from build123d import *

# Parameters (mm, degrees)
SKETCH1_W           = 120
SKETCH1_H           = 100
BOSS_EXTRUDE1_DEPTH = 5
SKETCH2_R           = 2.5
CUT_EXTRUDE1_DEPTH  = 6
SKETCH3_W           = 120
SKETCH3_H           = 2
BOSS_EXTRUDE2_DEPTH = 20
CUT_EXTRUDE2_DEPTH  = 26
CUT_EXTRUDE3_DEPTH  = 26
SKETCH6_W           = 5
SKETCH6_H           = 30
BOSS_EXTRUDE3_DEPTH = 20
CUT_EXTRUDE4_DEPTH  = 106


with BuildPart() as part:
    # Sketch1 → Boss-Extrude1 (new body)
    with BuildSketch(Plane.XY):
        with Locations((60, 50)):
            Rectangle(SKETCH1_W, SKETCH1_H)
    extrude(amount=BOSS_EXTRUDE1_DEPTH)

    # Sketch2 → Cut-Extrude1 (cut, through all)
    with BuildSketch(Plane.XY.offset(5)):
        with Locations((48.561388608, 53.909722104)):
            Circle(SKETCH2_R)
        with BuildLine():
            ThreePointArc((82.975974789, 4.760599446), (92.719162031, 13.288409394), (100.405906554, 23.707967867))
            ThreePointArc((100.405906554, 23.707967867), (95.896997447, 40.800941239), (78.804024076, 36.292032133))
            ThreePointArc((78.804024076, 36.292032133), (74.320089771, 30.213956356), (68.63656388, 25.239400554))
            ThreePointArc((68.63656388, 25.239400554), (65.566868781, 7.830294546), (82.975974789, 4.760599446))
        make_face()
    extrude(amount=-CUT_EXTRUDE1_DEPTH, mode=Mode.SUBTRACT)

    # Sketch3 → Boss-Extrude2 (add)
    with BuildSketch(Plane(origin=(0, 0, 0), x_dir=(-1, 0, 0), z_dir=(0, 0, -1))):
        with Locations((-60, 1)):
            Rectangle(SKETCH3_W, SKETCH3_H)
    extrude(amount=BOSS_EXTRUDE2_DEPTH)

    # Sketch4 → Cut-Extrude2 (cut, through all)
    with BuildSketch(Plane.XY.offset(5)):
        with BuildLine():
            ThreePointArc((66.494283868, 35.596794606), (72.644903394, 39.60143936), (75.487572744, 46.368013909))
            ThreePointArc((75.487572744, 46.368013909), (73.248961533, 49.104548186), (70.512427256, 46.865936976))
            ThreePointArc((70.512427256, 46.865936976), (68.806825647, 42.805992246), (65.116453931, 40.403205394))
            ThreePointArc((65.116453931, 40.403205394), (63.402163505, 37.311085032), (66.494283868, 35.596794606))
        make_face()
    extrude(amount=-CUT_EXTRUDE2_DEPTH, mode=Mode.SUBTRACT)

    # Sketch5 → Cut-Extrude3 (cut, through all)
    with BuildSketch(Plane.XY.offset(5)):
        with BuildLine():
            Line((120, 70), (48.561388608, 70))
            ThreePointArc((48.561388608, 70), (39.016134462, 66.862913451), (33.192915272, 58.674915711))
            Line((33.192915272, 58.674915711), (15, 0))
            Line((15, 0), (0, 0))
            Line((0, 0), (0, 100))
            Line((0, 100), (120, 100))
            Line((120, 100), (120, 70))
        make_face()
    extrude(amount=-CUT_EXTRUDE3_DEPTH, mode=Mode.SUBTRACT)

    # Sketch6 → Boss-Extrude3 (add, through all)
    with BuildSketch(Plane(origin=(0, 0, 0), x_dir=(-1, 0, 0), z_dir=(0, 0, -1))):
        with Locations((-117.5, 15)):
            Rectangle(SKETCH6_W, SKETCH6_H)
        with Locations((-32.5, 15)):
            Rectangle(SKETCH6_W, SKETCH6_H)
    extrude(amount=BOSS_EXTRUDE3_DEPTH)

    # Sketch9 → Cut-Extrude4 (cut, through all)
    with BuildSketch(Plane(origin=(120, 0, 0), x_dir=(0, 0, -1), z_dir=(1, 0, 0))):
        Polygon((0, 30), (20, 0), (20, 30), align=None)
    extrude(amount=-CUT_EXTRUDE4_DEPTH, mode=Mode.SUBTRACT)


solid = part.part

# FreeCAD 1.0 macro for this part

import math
import FreeCAD as App
import Part
import Sketcher
Q = App.Units.Quantity

doc = App.newDocument("Part")
params = doc.addObject("Spreadsheet::Sheet", "Params")
for row, (alias, value) in enumerate([
    ("sketch1_width", "120 mm"),
    ("sketch1_height", "100 mm"),
    ("pad1_length", "5 mm"),
    ("sketch2_diameter", "5 mm"),
    ("sketch2_radius", "60 mm"),
    ("sketch2_radius2", "35 mm"),
    ("sketch3_width", "120 mm"),
    ("sketch3_height", "2 mm"),
    ("pad2_length", "20 mm"),
    ("sketch4_radius", "12.5 mm"),
    ("sketch4_radius2", "2.5 mm"),
    ("sketch5_width", "120 mm"),
    ("sketch5_width2", "15 mm"),
    ("sketch5_height", "30 mm"),
    ("sketch5_height2", "100 mm"),
    ("sketch6_width", "5 mm"),
    ("sketch6_height", "30 mm"),
    ("pad3_length", "20 mm"),
    ("sketch7_width", "30 mm"),
    ("sketch7_height", "20 mm"),
], start=1):
    params.set(f"A{row}", alias)
    params.set(f"B{row}", "=" + value)
    params.setAlias(f"B{row}", alias)

body = doc.addObject("PartDesign::Body", "Body")

# Sketch on XY plane
sketch1 = body.newObject("Sketcher::SketchObject", "Sketch")
sketch1.AttachmentSupport = (doc.getObject("XY_Plane"), [""])
sketch1.MapMode = "FlatFace"
sketch1.addGeometry([
    Part.LineSegment(App.Vector(0, 100, 0), App.Vector(0, 0, 0)),
    Part.LineSegment(App.Vector(0, 0, 0), App.Vector(120, 0, 0)),
    Part.LineSegment(App.Vector(120, 0, 0), App.Vector(120, 100, 0)),
    Part.LineSegment(App.Vector(120, 100, 0), App.Vector(0, 100, 0)),
], False)
sketch1.addConstraint([
    Sketcher.Constraint("Coincident", 0, 2, 1, 1),
    Sketcher.Constraint("Coincident", 1, 2, 2, 1),
    Sketcher.Constraint("Coincident", 2, 2, 3, 1),
    Sketcher.Constraint("Coincident", 3, 2, 0, 1),
    Sketcher.Constraint("Vertical", 0),
    Sketcher.Constraint("Horizontal", 1),
    Sketcher.Constraint("Vertical", 2),
    Sketcher.Constraint("Horizontal", 3),
    Sketcher.Constraint("Coincident", 0, 2, -1, 1),
    Sketcher.Constraint("DistanceX", 1, 1, 1, 2, Q("120 mm")),
    Sketcher.Constraint("DistanceY", 0, 2, 0, 1, Q("100 mm")),
])
sketch1.setExpression("Constraints[9]", "Params.sketch1_width")
sketch1.setExpression("Constraints[10]", "Params.sketch1_height")
pad1 = body.newObject("PartDesign::Pad", "Pad")
pad1.Profile = sketch1
pad1.setExpression("Length", "Params.pad1_length")

# Sketch on XY plane
sketch2 = body.newObject("Sketcher::SketchObject", "Sketch001")
sketch2.AttachmentSupport = (doc.getObject("XY_Plane"), [""])
sketch2.MapMode = "FlatFace"
sketch2.AttachmentOffset = App.Placement(App.Vector(0, 0, 5), App.Rotation())
sketch2.addGeometry([
    Part.Circle(App.Vector(48.561389, 53.909722, 0), App.Vector(0, 0, 1), 2.5),  # 0
    Part.ArcOfCircle(Part.Circle(App.Vector(48.561389, 53.909722, 0), App.Vector(0, 0, 1), 60), math.radians(-55), math.radians(-30.222716)),  # 1
    Part.ArcOfCircle(Part.Circle(App.Vector(89.604965, 30, 0), App.Vector(0, 0, 1), 12.5), math.radians(-30.222716), math.radians(149.777284)),  # 2
    Part.ArcOfCircle(Part.Circle(App.Vector(48.561389, 53.909722, 0), App.Vector(0, 0, 1), 35), math.radians(-55), math.radians(-30.222716)),  # 3
    Part.ArcOfCircle(Part.Circle(App.Vector(75.806269, 15, 0), App.Vector(0, 0, 1), 12.5), math.radians(125), math.radians(305)),  # 4
], False)
sketch2.addConstraint([
    Sketcher.Constraint("Tangent", 1, 2, 2, 1),
    Sketcher.Constraint("Tangent", 2, 2, 3, 2),
    Sketcher.Constraint("Tangent", 3, 1, 4, 1),
    Sketcher.Constraint("Tangent", 4, 2, 1, 1),
    Sketcher.Constraint("Coincident", 1, 3, 0, 3),
    Sketcher.Constraint("Coincident", 3, 3, 0, 3),
    Sketcher.Constraint("Diameter", 0, Q("5 mm")),
    Sketcher.Constraint("Radius", 1, Q("60 mm")),
    Sketcher.Constraint("Radius", 3, Q("35 mm")),
    Sketcher.Constraint("DistanceY", -1, 1, 2, 3, Q("30 mm")),
    Sketcher.Constraint("DistanceY", -1, 1, 4, 3, Q("15 mm")),
    Sketcher.Constraint("DistanceY", -1, 1, 3, 1, Q("25.239401 mm")),
    Sketcher.Constraint("DistanceX", -1, 1, 0, 3, Q("48.561389 mm")),
])
sketch2.setExpression("Constraints[6]", "Params.sketch2_diameter")
sketch2.setExpression("Constraints[7]", "Params.sketch2_radius")
sketch2.setExpression("Constraints[8]", "Params.sketch2_radius2")
pocket1 = body.newObject("PartDesign::Pocket", "Pocket")
pocket1.Profile = sketch2
pocket1.Type = "ThroughAll"

# Sketch on XY plane
sketch3 = body.newObject("Sketcher::SketchObject", "Sketch002")
sketch3.AttachmentSupport = (doc.getObject("XY_Plane"), [""])
sketch3.MapMode = "FlatFace"
sketch3.addGeometry([
    Part.LineSegment(App.Vector(120, 2, 0), App.Vector(120, 0, 0)),
    Part.LineSegment(App.Vector(120, 0, 0), App.Vector(0, 0, 0)),
    Part.LineSegment(App.Vector(0, 0, 0), App.Vector(0, 2, 0)),
    Part.LineSegment(App.Vector(0, 2, 0), App.Vector(120, 2, 0)),
], False)
sketch3.addConstraint([
    Sketcher.Constraint("Coincident", 0, 2, 1, 1),
    Sketcher.Constraint("Coincident", 1, 2, 2, 1),
    Sketcher.Constraint("Coincident", 2, 2, 3, 1),
    Sketcher.Constraint("Coincident", 3, 2, 0, 1),
    Sketcher.Constraint("Vertical", 0),
    Sketcher.Constraint("Horizontal", 1),
    Sketcher.Constraint("Vertical", 2),
    Sketcher.Constraint("Horizontal", 3),
    Sketcher.Constraint("Coincident", 1, 2, -1, 1),
    Sketcher.Constraint("DistanceX", 1, 2, 1, 1, Q("120 mm")),
    Sketcher.Constraint("DistanceY", 0, 2, 0, 1, Q("2 mm")),
])
sketch3.setExpression("Constraints[9]", "Params.sketch3_width")
sketch3.setExpression("Constraints[10]", "Params.sketch3_height")
pad2 = body.newObject("PartDesign::Pad", "Pad001")
pad2.Profile = sketch3
pad2.setExpression("Length", "Params.pad2_length")
pad2.Reversed = True

# Sketch on XY plane
sketch4 = body.newObject("Sketcher::SketchObject", "Sketch003")
sketch4.AttachmentSupport = (doc.getObject("XY_Plane"), [""])
sketch4.MapMode = "FlatFace"
sketch4.AttachmentOffset = App.Placement(App.Vector(0, 0, 5), App.Rotation())
sketch4.addGeometry([
    Part.ArcOfCircle(Part.Circle(App.Vector(63.049709, 47.612822, 0), App.Vector(0, 0, 1), 12.5), math.radians(-74.004254), math.radians(-5.715251)),
    Part.ArcOfCircle(Part.Circle(App.Vector(73, 46.616975, 0), App.Vector(0, 0, 1), 2.5), math.radians(-5.715251), math.radians(174.284749)),
    Part.ArcOfCircle(Part.Circle(App.Vector(63.049709, 47.612822, 0), App.Vector(0, 0, 1), 7.5), math.radians(-74.004254), math.radians(-5.715251)),
    Part.ArcOfCircle(Part.Circle(App.Vector(65.805369, 38, 0), App.Vector(0, 0, 1), 2.5), math.radians(105.995746), math.radians(285.995746)),
], False)
sketch4.addConstraint([
    Sketcher.Constraint("Tangent", 0, 2, 1, 1),
    Sketcher.Constraint("Tangent", 1, 2, 2, 2),
    Sketcher.Constraint("Tangent", 2, 1, 3, 1),
    Sketcher.Constraint("Tangent", 3, 2, 0, 1),
    Sketcher.Constraint("Coincident", 2, 3, 0, 3),
    Sketcher.Constraint("Radius", 0, Q("12.5 mm")),
    Sketcher.Constraint("Radius", 1, Q("2.5 mm")),
    Sketcher.Constraint("DistanceX", -1, 1, 1, 3, Q("73 mm")),
    Sketcher.Constraint("DistanceY", -1, 1, 3, 3, Q("38 mm")),
    Sketcher.Constraint("DistanceX", -1, 1, 0, 3, Q("63.049709 mm")),
    Sketcher.Constraint("DistanceY", -1, 1, 0, 3, Q("47.612822 mm")),
])
sketch4.setExpression("Constraints[5]", "Params.sketch4_radius")
sketch4.setExpression("Constraints[6]", "Params.sketch4_radius2")
pocket2 = body.newObject("PartDesign::Pocket", "Pocket001")
pocket2.Profile = sketch4
pocket2.Type = "ThroughAll"

# Sketch on XY plane
sketch5 = body.newObject("Sketcher::SketchObject", "Sketch004")
sketch5.AttachmentSupport = (doc.getObject("XY_Plane"), [""])
sketch5.MapMode = "FlatFace"
sketch5.AttachmentOffset = App.Placement(App.Vector(0, 0, 5), App.Rotation())
sketch5.addGeometry([
    Part.LineSegment(App.Vector(48.561389, 70, 0), App.Vector(120, 70, 0)),  # 0
    Part.LineSegment(App.Vector(120, 70, 0), App.Vector(120, 100, 0)),  # 1
    Part.LineSegment(App.Vector(120, 100, 0), App.Vector(0, 100, 0)),  # 2
    Part.LineSegment(App.Vector(0, 100, 0), App.Vector(0, 0, 0)),  # 3
    Part.LineSegment(App.Vector(0, 0, 0), App.Vector(15, 0, 0)),  # 4
    Part.LineSegment(App.Vector(15, 0, 0), App.Vector(33.192915, 58.674916, 0)),  # 5
    Part.ArcOfCircle(Part.Circle(App.Vector(48.561389, 53.909722, 0), App.Vector(0, 0, 1), 16.090278), math.radians(90), math.radians(162.773275)),  # 6
], False)
sketch5.addConstraint([
    Sketcher.Constraint("Coincident", 0, 2, 1, 1),
    Sketcher.Constraint("Coincident", 1, 2, 2, 1),
    Sketcher.Constraint("Coincident", 2, 2, 3, 1),
    Sketcher.Constraint("Coincident", 3, 2, 4, 1),
    Sketcher.Constraint("Coincident", 4, 2, 5, 1),
    Sketcher.Constraint("Tangent", 5, 2, 6, 2),
    Sketcher.Constraint("Tangent", 6, 1, 0, 1),
    Sketcher.Constraint("Horizontal", 0),
    Sketcher.Constraint("Vertical", 1),
    Sketcher.Constraint("Horizontal", 2),
    Sketcher.Constraint("Vertical", 3),
    Sketcher.Constraint("Horizontal", 4),
    Sketcher.Constraint("Coincident", 3, 2, -1, 1),
    Sketcher.Constraint("DistanceX", 2, 2, 2, 1, Q("120 mm")),
    Sketcher.Constraint("DistanceX", 4, 1, 4, 2, Q("15 mm")),
    Sketcher.Constraint("DistanceY", 1, 1, 1, 2, Q("30 mm")),
    Sketcher.Constraint("DistanceY", 3, 2, 3, 1, Q("100 mm")),
    Sketcher.Constraint("Radius", 6, Q("16.090278 mm")),
    Sketcher.Constraint("DistanceX", 0, 1, 0, 2, Q("71.438611 mm")),
])
sketch5.setExpression("Constraints[13]", "Params.sketch5_width")
sketch5.setExpression("Constraints[14]", "Params.sketch5_width2")
sketch5.setExpression("Constraints[15]", "Params.sketch5_height")
sketch5.setExpression("Constraints[16]", "Params.sketch5_height2")
pocket3 = body.newObject("PartDesign::Pocket", "Pocket002")
pocket3.Profile = sketch5
pocket3.Type = "ThroughAll"

# Sketch on XY plane
sketch6 = body.newObject("Sketcher::SketchObject", "Sketch005")
sketch6.AttachmentSupport = (doc.getObject("XY_Plane"), [""])
sketch6.MapMode = "FlatFace"
sketch6.addGeometry([
    Part.LineSegment(App.Vector(120, 30, 0), App.Vector(120, 0, 0)),  # 0
    Part.LineSegment(App.Vector(120, 0, 0), App.Vector(115, 0, 0)),  # 1
    Part.LineSegment(App.Vector(115, 0, 0), App.Vector(115, 30, 0)),  # 2
    Part.LineSegment(App.Vector(115, 30, 0), App.Vector(120, 30, 0)),  # 3
    Part.LineSegment(App.Vector(35, 30, 0), App.Vector(35, 0, 0)),  # 4
    Part.LineSegment(App.Vector(35, 0, 0), App.Vector(30, 0, 0)),  # 5
    Part.LineSegment(App.Vector(30, 0, 0), App.Vector(30, 30, 0)),  # 6
    Part.LineSegment(App.Vector(30, 30, 0), App.Vector(35, 30, 0)),  # 7
], False)
sketch6.addConstraint([
    Sketcher.Constraint("Coincident", 0, 2, 1, 1),
    Sketcher.Constraint("Coincident", 1, 2, 2, 1),
    Sketcher.Constraint("Coincident", 2, 2, 3, 1),
    Sketcher.Constraint("Coincident", 3, 2, 0, 1),
    Sketcher.Constraint("Coincident", 4, 2, 5, 1),
    Sketcher.Constraint("Coincident", 5, 2, 6, 1),
    Sketcher.Constraint("Coincident", 6, 2, 7, 1),
    Sketcher.Constraint("Coincident", 7, 2, 4, 1),
    Sketcher.Constraint("Vertical", 0),
    Sketcher.Constraint("Horizontal", 1),
    Sketcher.Constraint("Vertical", 2),
    Sketcher.Constraint("Horizontal", 3),
    Sketcher.Constraint("Vertical", 4),
    Sketcher.Constraint("Horizontal", 5),
    Sketcher.Constraint("Vertical", 6),
    Sketcher.Constraint("Horizontal", 7),
    Sketcher.Constraint("PointOnObject", 0, 2, -1),
    Sketcher.Constraint("PointOnObject", 4, 2, -1),
    Sketcher.Constraint("Horizontal", 3, 2, 6, 2),
    Sketcher.Constraint("Equal", 3, 5),
    Sketcher.Constraint("DistanceX", 1, 2, 1, 1, Q("5 mm")),
    Sketcher.Constraint("DistanceY", 0, 2, 0, 1, Q("30 mm")),
    Sketcher.Constraint("DistanceX", -1, 1, 0, 2, Q("120 mm")),
    Sketcher.Constraint("DistanceX", -1, 1, 4, 2, Q("35 mm")),
])
sketch6.setExpression("Constraints[20]", "Params.sketch6_width")
sketch6.setExpression("Constraints[21]", "Params.sketch6_height")
pad3 = body.newObject("PartDesign::Pad", "Pad002")
pad3.Profile = sketch6
pad3.setExpression("Length", "Params.pad3_length")
pad3.Reversed = True

# Sketch on YZ plane
sketch7 = body.newObject("Sketcher::SketchObject", "Sketch006")
sketch7.AttachmentSupport = (doc.getObject("YZ_Plane"), [""])
sketch7.MapMode = "FlatFace"
sketch7.AttachmentOffset = App.Placement(App.Vector(0, 0, 120), App.Rotation())
sketch7.addGeometry([
    Part.LineSegment(App.Vector(30, 0, 0), App.Vector(0, -20, 0)),
    Part.LineSegment(App.Vector(0, -20, 0), App.Vector(30, -20, 0)),
    Part.LineSegment(App.Vector(30, -20, 0), App.Vector(30, 0, 0)),
], False)
sketch7.addConstraint([
    Sketcher.Constraint("Coincident", 0, 2, 1, 1),
    Sketcher.Constraint("Coincident", 1, 2, 2, 1),
    Sketcher.Constraint("Coincident", 2, 2, 0, 1),
    Sketcher.Constraint("Horizontal", 1),
    Sketcher.Constraint("Vertical", 2),
    Sketcher.Constraint("PointOnObject", 0, 2, -2),
    Sketcher.Constraint("PointOnObject", 2, 2, -1),
    Sketcher.Constraint("DistanceX", 1, 1, 1, 2, Q("30 mm")),
    Sketcher.Constraint("DistanceY", 2, 1, 2, 2, Q("20 mm")),
])
sketch7.setExpression("Constraints[7]", "Params.sketch7_width")
sketch7.setExpression("Constraints[8]", "Params.sketch7_height")
pocket4 = body.newObject("PartDesign::Pocket", "Pocket003")
pocket4.Profile = sketch7
pocket4.Type = "ThroughAll"

doc.recompute()
